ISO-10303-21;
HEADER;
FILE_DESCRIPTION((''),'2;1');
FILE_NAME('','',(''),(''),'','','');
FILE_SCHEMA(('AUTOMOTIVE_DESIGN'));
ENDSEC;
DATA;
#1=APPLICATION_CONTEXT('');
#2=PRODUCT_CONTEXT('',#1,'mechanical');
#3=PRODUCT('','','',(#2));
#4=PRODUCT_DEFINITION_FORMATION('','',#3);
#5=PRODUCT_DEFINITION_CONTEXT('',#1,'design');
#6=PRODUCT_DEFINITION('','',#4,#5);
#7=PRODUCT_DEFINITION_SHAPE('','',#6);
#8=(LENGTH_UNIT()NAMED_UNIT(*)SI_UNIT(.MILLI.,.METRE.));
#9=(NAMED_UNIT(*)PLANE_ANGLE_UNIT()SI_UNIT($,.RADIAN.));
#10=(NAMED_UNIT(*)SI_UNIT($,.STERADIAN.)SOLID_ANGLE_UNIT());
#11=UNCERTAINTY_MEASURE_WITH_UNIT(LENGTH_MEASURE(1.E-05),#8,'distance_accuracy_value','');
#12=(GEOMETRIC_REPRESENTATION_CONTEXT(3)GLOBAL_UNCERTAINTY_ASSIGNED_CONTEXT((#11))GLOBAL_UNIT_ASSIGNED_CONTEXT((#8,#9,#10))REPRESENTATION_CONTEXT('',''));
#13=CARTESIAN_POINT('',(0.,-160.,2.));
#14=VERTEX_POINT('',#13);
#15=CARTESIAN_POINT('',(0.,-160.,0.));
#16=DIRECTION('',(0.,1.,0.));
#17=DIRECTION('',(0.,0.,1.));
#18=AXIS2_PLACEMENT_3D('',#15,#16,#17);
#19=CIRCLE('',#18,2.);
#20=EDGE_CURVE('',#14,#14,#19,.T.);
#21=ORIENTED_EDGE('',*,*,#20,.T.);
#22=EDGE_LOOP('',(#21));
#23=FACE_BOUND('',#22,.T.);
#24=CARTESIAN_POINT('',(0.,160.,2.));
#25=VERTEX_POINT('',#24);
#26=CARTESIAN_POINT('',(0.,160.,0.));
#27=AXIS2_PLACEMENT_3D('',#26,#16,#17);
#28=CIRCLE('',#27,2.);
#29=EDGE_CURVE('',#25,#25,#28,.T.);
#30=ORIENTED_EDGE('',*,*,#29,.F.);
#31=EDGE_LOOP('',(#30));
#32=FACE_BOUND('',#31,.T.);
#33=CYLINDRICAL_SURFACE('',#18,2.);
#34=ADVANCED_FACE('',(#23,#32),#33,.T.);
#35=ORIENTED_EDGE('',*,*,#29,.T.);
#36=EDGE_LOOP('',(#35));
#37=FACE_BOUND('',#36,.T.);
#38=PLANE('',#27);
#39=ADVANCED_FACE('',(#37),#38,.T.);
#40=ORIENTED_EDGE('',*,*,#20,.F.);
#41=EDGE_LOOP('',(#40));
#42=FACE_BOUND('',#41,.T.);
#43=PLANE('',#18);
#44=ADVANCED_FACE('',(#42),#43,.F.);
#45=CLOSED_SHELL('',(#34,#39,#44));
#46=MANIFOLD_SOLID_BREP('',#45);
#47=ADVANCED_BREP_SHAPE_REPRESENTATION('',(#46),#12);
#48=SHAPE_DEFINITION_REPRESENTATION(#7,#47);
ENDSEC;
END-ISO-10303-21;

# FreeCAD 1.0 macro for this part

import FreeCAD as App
import Part
import Sketcher
Q = App.Units.Quantity

doc = App.newDocument("Part")
body = doc.addObject("PartDesign::Body", "Body")

sketch1 = doc.addObject("Sketcher::SketchObject", "Sketch")
body.addObject(sketch1)
sketch1.AttachmentSupport = (doc.XZ_Plane, [""])
sketch1.MapMode = "FlatFace"
sketch1.addGeometry(Part.Circle(App.Vector(0, 0, 0), App.Vector(0, 0, 1), 2), False)
sketch1.addConstraint(Sketcher.Constraint("Coincident", 0, 3, -1, 1))
sketch1.addConstraint(Sketcher.Constraint("Diameter", 0, Q("4 mm")))
pad1 = doc.addObject("PartDesign::Pad", "Pad")
body.addObject(pad1)
pad1.Profile = sketch1
pad1.Type = "TwoLengths"
pad1.Length = 160
pad1.Length2 = 160
pad1.Reversed = True

doc.recompute()
